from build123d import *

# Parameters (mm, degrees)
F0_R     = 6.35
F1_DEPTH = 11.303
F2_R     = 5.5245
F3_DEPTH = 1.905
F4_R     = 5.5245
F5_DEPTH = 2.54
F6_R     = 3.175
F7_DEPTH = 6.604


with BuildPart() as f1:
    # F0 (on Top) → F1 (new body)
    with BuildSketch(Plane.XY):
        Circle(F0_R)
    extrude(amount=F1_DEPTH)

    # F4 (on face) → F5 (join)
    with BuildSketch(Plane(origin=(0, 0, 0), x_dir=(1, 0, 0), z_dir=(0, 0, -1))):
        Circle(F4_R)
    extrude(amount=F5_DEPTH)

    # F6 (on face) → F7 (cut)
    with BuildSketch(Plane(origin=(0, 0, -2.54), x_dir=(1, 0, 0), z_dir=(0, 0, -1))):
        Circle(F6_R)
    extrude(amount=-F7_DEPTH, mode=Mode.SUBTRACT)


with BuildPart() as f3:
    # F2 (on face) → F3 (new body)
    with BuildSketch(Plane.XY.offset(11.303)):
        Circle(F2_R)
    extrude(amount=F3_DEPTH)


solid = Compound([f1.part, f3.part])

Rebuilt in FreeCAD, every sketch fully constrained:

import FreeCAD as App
import Part
import Sketcher
Q = App.Units.Quantity

doc = App.newDocument("Part")
body = doc.addObject("PartDesign::Body", "Body")

sketch1 = body.newObject("Sketcher::SketchObject", "Sketch")
sketch1.AttachmentSupport = (doc.getObject("XY_Plane"), [""])
sketch1.MapMode = "FlatFace"
sketch1.addGeometry(Part.Circle(App.Vector(0, 0, 0), App.Vector(0, 0, 1), 6), False)
sketch1.addConstraint([
    Sketcher.Constraint("Coincident", 0, 3, -1, 1),
    Sketcher.Constraint("Diameter", 0, Q("0.5 in")),
])
pad1 = body.newObject("PartDesign::Pad", "Pad")
pad1.Profile = sketch1
pad1.Length = Q("0.445 in")

sketch2 = body.newObject("Sketcher::SketchObject", "Sketch001")
sketch2.AttachmentSupport = (doc.getObject("XY_Plane"), [""])
sketch2.MapMode = "FlatFace"
sketch2.addGeometry(Part.Circle(App.Vector(0, 0, 0), App.Vector(0, 0, 1), 6), False)
sketch2.addConstraint([
    Sketcher.Constraint("Coincident", 0, 3, -1, 1),
    Sketcher.Constraint("Diameter", 0, Q("0.435 in")),
])
pad2 = body.newObject("PartDesign::Pad", "Pad001")
pad2.Profile = sketch2
pad2.Length = Q("0.1 in")
pad2.Reversed = True

sketch3 = body.newObject("Sketcher::SketchObject", "Sketch002")
sketch3.AttachmentSupport = (doc.getObject("XY_Plane"), [""])
sketch3.MapMode = "FlatFace"
sketch3.AttachmentOffset = App.Placement(App.Vector(0, 0, -0.1 * 25.4), App.Rotation())
sketch3.addGeometry(Part.Circle(App.Vector(0, 0, 0), App.Vector(0, 0, 1), 3.2), False)
sketch3.addConstraint([
    Sketcher.Constraint("Coincident", 0, 3, -1, 1),
    Sketcher.Constraint("Diameter", 0, Q("0.25 in")),
])
pocket1 = body.newObject("PartDesign::Pocket", "Pocket")
pocket1.Profile = sketch3
pocket1.Length = Q("0.26 in")
pocket1.Reversed = True
body2 = doc.addObject("PartDesign::Body", "Body001")

sketch4 = body2.newObject("Sketcher::SketchObject", "Sketch003")
sketch4.AttachmentSupport = (doc.getObject("XY_Plane001"), [""])
sketch4.MapMode = "FlatFace"
sketch4.AttachmentOffset = App.Placement(App.Vector(0, 0, 0.445 * 25.4), App.Rotation())
sketch4.addGeometry(Part.Circle(App.Vector(0, 0, 0), App.Vector(0, 0, 1), 6), False)
sketch4.addConstraint([
    Sketcher.Constraint("Coincident", 0, 3, -1, 1),
    Sketcher.Constraint("Diameter", 0, Q("0.435 in")),
])
pad3 = body2.newObject("PartDesign::Pad", "Pad002")
pad3.Profile = sketch4
pad3.Length = Q("0.075 in")

doc.recompute()
